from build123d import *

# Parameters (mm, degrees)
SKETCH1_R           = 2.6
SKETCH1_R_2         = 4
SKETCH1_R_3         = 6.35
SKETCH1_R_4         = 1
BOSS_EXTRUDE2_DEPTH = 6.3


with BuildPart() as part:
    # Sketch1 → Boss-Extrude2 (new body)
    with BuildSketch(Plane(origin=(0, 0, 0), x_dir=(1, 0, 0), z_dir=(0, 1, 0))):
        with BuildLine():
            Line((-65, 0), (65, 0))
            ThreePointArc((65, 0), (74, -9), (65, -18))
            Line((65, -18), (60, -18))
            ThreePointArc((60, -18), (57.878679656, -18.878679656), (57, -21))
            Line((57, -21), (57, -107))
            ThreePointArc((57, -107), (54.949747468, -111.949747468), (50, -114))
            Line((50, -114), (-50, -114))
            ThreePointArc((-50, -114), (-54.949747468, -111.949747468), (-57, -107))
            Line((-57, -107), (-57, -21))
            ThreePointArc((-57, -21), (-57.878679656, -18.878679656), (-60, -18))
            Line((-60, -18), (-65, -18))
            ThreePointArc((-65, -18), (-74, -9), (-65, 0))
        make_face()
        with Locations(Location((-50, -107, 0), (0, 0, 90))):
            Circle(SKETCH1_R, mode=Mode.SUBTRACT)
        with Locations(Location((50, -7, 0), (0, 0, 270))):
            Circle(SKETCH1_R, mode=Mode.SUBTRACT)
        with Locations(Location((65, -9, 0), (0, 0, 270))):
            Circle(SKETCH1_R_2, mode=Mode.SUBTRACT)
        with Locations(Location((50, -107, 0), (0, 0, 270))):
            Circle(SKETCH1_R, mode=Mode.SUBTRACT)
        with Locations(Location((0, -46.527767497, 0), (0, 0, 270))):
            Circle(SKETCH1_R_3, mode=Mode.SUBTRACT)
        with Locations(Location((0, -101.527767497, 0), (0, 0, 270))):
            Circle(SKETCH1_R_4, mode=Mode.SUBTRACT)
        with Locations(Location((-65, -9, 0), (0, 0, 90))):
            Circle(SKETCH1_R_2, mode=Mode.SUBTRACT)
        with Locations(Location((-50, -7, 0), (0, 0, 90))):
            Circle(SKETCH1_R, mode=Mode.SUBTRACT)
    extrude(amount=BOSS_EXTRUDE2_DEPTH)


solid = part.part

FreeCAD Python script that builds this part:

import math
import FreeCAD as App
import Part
import Sketcher
Q = App.Units.Quantity

doc = App.newDocument("Part")
body = doc.addObject("PartDesign::Body", "Body")

# Sketch on XZ plane
sketch1 = body.newObject("Sketcher::SketchObject", "Sketch")
sketch1.AttachmentSupport = (doc.getObject("XZ_Plane"), [""])
sketch1.MapMode = "FlatFace"
sketch1.addGeometry(Part.LineSegment(App.Vector(65, 0, 0), App.Vector(-65, 0, 0)), False)
sketch1.addGeometry(Part.ArcOfCircle(Part.Circle(App.Vector(-65, 9, 0), App.Vector(0, 0, 1), 9), math.radians(90), math.radians(270)), False)
sketch1.addGeometry(Part.LineSegment(App.Vector(-65, 18, 0), App.Vector(-60, 18, 0)), False)
sketch1.addGeometry(Part.ArcOfCircle(Part.Circle(App.Vector(-60, 21, 0), App.Vector(0, 0, 1), 3), math.radians(-90), math.radians(0)), False)
sketch1.addGeometry(Part.LineSegment(App.Vector(-57, 21, 0), App.Vector(-57, 107, 0)), False)
sketch1.addGeometry(Part.ArcOfCircle(Part.Circle(App.Vector(-50, 107, 0), App.Vector(0, 0, 1), 7), math.radians(90), math.radians(180)), False)
sketch1.addGeometry(Part.LineSegment(App.Vector(-50, 114, 0), App.Vector(50, 114, 0)), False)
sketch1.addGeometry(Part.ArcOfCircle(Part.Circle(App.Vector(50, 107, 0), App.Vector(0, 0, 1), 7), math.radians(0), math.radians(90)), False)
sketch1.addGeometry(Part.LineSegment(App.Vector(57, 107, 0), App.Vector(57, 21, 0)), False)
sketch1.addGeometry(Part.ArcOfCircle(Part.Circle(App.Vector(60, 21, 0), App.Vector(0, 0, 1), 3), math.radians(180), math.radians(270)), False)
sketch1.addGeometry(Part.LineSegment(App.Vector(60, 18, 0), App.Vector(65, 18, 0)), False)
sketch1.addGeometry(Part.ArcOfCircle(Part.Circle(App.Vector(65, 9, 0), App.Vector(0, 0, 1), 9), math.radians(-90), math.radians(90)), False)
sketch1.addGeometry(Part.Circle(App.Vector(50, 107, 0), App.Vector(0, 0, 1), 2.6), False)
sketch1.addGeometry(Part.Circle(App.Vector(0, 101.5, 0), App.Vector(0, 0, 1), 1), False)
sketch1.addGeometry(Part.Circle(App.Vector(-50, 107, 0), App.Vector(0, 0, 1), 2.6), False)
sketch1.addGeometry(Part.Circle(App.Vector(65, 9, 0), App.Vector(0, 0, 1), 4), False)
sketch1.addGeometry(Part.Circle(App.Vector(50, 7, 0), App.Vector(0, 0, 1), 2.6), False)
sketch1.addGeometry(Part.Circle(App.Vector(0, 46.5, 0), App.Vector(0, 0, 1), 6.3), False)
sketch1.addGeometry(Part.Circle(App.Vector(-50, 7, 0), App.Vector(0, 0, 1), 2.6), False)
sketch1.addGeometry(Part.Circle(App.Vector(-65, 9, 0), App.Vector(0, 0, 1), 4), False)
sketch1.addConstraint(Sketcher.Constraint("Tangent", 0, 2, 1, 2))
sketch1.addConstraint(Sketcher.Constraint("Tangent", 1, 1, 2, 1))
sketch1.addConstraint(Sketcher.Constraint("Tangent", 2, 2, 3, 1))
sketch1.addConstraint(Sketcher.Constraint("Tangent", 3, 2, 4, 1))
sketch1.addConstraint(Sketcher.Constraint("Tangent", 4, 2, 5, 2))
sketch1.addConstraint(Sketcher.Constraint("Tangent", 5, 1, 6, 1))
sketch1.addConstraint(Sketcher.Constraint("Tangent", 6, 2, 7, 2))
sketch1.addConstraint(Sketcher.Constraint("Tangent", 7, 1, 8, 1))
sketch1.addConstraint(Sketcher.Constraint("Tangent", 8, 2, 9, 1))
sketch1.addConstraint(Sketcher.Constraint("Tangent", 9, 2, 10, 1))
sketch1.addConstraint(Sketcher.Constraint("Tangent", 10, 2, 11, 2))
sketch1.addConstraint(Sketcher.Constraint("Tangent", 11, 1, 0, 1))
sketch1.addConstraint(Sketcher.Constraint("Horizontal", 0))
sketch1.addConstraint(Sketcher.Constraint("Horizontal", 2))
sketch1.addConstraint(Sketcher.Constraint("Vertical", 4))
sketch1.addConstraint(Sketcher.Constraint("Horizontal", 6))
sketch1.addConstraint(Sketcher.Constraint("Vertical", 8))
sketch1.addConstraint(Sketcher.Constraint("Horizontal", 10))
sketch1.addConstraint(Sketcher.Constraint("Coincident", 12, 3, 7, 3))
sketch1.addConstraint(Sketcher.Constraint("Coincident", 14, 3, 5, 3))
sketch1.addConstraint(Sketcher.Constraint("Coincident", 15, 3, 11, 3))
sketch1.addConstraint(Sketcher.Constraint("Coincident", 19, 3, 1, 3))
sketch1.addConstraint(Sketcher.Constraint("Equal", 5, 7))
sketch1.addConstraint(Sketcher.Constraint("Equal", 3, 9))
sketch1.addConstraint(Sketcher.Constraint("Equal", 1, 11))
sketch1.addConstraint(Sketcher.Constraint("Equal", 12, 14))
sketch1.addConstraint(Sketcher.Constraint("Equal", 14, 16))
sketch1.addConstraint(Sketcher.Constraint("Equal", 16, 18))
sketch1.addConstraint(Sketcher.Constraint("Equal", 15, 19))
sketch1.addConstraint(Sketcher.Constraint("Symmetric", 0, 2, 11, 1, -1, 1))
sketch1.addConstraint(Sketcher.Constraint("Symmetric", 16, 3, 18, 3, -2))
sketch1.addConstraint(Sketcher.Constraint("PointOnObject", 13, 3, -2))
sketch1.addConstraint(Sketcher.Constraint("PointOnObject", 17, 3, -2))
sketch1.addConstraint(Sketcher.Constraint("Vertical", 12, 3, 16, 3))
sketch1.addConstraint(Sketcher.Constraint("Vertical", 14, 3, 18, 3))
sketch1.addConstraint(Sketcher.Constraint("Diameter", 13, Q("2 mm")))
sketch1.addConstraint(Sketcher.Constraint("Diameter", 15, Q("8 mm")))
sketch1.addConstraint(Sketcher.Constraint("Radius", 1, Q("9 mm")))
sketch1.addConstraint(Sketcher.Constraint("Radius", 3, Q("3 mm")))
sketch1.addConstraint(Sketcher.Constraint("Radius", 5, Q("7 mm")))
sketch1.addConstraint(Sketcher.Constraint("Diameter", 12, Q("5.2 mm")))
sketch1.addConstraint(Sketcher.Constraint("Diameter", 17, Q("12.7 mm")))
sketch1.addConstraint(Sketcher.Constraint("DistanceX", 0, 2, 0, 1, Q("130 mm")))
sketch1.addConstraint(Sketcher.Constraint("DistanceX", 2, 1, 2, 2, Q("5 mm")))
sketch1.addConstraint(Sketcher.Constraint("DistanceY", 4, 1, 4, 2, Q("86 mm")))
sketch1.addConstraint(Sketcher.Constraint("DistanceY", -1, 1, 16, 3, Q("7 mm")))
sketch1.addConstraint(Sketcher.Constraint("DistanceY", 17, 3, 13, 3, Q("55 mm")))
sketch1.addConstraint(Sketcher.Constraint("DistanceY", -1, 1, 13, 3, Q("101.527767 mm")))
pad1 = body.newObject("PartDesign::Pad", "Pad")
pad1.Profile = sketch1
pad1.Length = 6.3
pad1.Reversed = True

doc.recompute()
